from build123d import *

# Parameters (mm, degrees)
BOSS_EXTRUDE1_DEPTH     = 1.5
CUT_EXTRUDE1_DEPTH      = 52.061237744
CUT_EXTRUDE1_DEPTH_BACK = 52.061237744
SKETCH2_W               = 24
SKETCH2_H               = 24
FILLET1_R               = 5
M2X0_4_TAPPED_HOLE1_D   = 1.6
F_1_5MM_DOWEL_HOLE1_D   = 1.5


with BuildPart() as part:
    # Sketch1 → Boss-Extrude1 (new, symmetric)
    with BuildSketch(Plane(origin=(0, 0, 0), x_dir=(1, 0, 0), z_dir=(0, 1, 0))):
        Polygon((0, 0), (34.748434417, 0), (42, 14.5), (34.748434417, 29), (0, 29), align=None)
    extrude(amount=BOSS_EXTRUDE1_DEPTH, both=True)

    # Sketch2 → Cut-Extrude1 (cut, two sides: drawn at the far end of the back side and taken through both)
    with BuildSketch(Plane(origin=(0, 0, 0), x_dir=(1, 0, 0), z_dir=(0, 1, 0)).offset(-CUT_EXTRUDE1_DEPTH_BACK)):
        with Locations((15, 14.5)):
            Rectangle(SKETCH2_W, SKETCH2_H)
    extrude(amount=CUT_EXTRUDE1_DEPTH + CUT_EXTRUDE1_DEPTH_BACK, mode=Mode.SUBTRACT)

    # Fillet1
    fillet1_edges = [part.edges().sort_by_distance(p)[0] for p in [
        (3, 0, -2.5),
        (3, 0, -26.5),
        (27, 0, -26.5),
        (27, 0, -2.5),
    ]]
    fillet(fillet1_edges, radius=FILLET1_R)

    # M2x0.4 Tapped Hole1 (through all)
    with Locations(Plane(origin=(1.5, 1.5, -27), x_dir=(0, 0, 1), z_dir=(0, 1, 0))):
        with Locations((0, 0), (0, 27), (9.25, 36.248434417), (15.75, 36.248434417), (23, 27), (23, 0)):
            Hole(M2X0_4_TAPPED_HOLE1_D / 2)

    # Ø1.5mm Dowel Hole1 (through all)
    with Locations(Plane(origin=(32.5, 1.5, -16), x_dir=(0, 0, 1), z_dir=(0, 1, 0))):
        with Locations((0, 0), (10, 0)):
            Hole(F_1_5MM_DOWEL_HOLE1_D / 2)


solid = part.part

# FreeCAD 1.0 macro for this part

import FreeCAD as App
import Part
import Sketcher

V = App.Vector
Q = App.Units.Quantity


def edges_at(feature, points):
    """Names of the edges that pass closest to the given points."""
    edges = feature.Shape.Edges
    near = lambda p: min(range(len(edges)), key=lambda i: edges[i].distToShape(Part.Vertex(*p))[0])
    return sorted({f"Edge{near(p) + 1}" for p in points})


def add_polygon(sketch, points):
    """Adds a closed chain of lines whose ends are joined by coincident constraints."""
    first, n = sketch.GeometryCount, len(points)
    for a, b in zip(points, points[1:] + points[:1]):
        sketch.addGeometry(Part.LineSegment(App.Vector(*a, 0), App.Vector(*b, 0)), False)
    for i in range(n):
        sketch.addConstraint(Sketcher.Constraint("Coincident", first + i, 2, first + (i + 1) % n, 1))

doc = App.newDocument("Part")
body = doc.addObject("PartDesign::Body", "Body")

sketch1 = body.newObject("Sketcher::SketchObject", "Sketch")
sketch1.AttachmentSupport = (doc.getObject("XZ_Plane"), [""])
sketch1.MapMode = "FlatFace"
add_polygon(sketch1, [(0, 0), (35, 0), (42, -14), (35, -29), (0, -29)])
sketch1.addConstraint([
    Sketcher.Constraint("Horizontal", 0),
    Sketcher.Constraint("Horizontal", 3),
    Sketcher.Constraint("Vertical", 4),
    Sketcher.Constraint("Coincident", 4, 2, -1, 1),
    Sketcher.Constraint("Vertical", 0, 2, 2, 2),
    Sketcher.Constraint("Equal", 1, 2),
    Sketcher.Constraint("DistanceY", 4, 1, 4, 2, Q("29 mm")),
    Sketcher.Constraint("DistanceX", -1, 1, 1, 2, Q("42 mm")),
    Sketcher.Constraint("Angle", 1, Q("-63.43 deg")),
])
pad1 = body.newObject("PartDesign::Pad", "Pad")
pad1.Profile = sketch1
pad1.Length = 3
pad1.Midplane = True

sketch2 = body.newObject("Sketcher::SketchObject", "Sketch001")
sketch2.AttachmentSupport = (doc.getObject("XZ_Plane"), [""])
sketch2.MapMode = "FlatFace"
add_polygon(sketch2, [(3, -26), (3, -2), (27, -2), (27, -26)])
sketch2.addConstraint([
    Sketcher.Constraint("Vertical", 0),
    Sketcher.Constraint("Horizontal", 1),
    Sketcher.Constraint("Vertical", 2),
    Sketcher.Constraint("Horizontal", 3),
    Sketcher.Constraint("Equal", 3, 0),
    Sketcher.Constraint("DistanceX", 1, 1, 1, 2, Q("24 mm")),
    Sketcher.Constraint("DistanceX", -1, 1, 0, 2, Q("3 mm")),
    Sketcher.Constraint("DistanceY", 0, 2, -1, 1, Q("2.5 mm")),
])
pocket1 = body.newObject("PartDesign::Pocket", "Pocket")
pocket1.Profile = sketch2
pocket1.Type = "ThroughAll"
pocket1.Midplane = True
doc.recompute()

fillet = body.newObject("PartDesign::Fillet", "Fillet")
fillet.Base = (pocket1, edges_at(pocket1, [
    (3, 0, -2.5),
    (3, 0, -26.5),
    (27, 0, -26.5),
    (27, 0, -2.5),
]))
fillet.Radius = 5

sketch3 = body.newObject("Sketcher::SketchObject", "Sketch002")
sketch3.AttachmentSupport = (doc.getObject("XZ_Plane"), [""])
sketch3.MapMode = "FlatFace"
sketch3.AttachmentOffset = App.Placement(V(0, 0, -1.5), App.Rotation())
sketch3.addGeometry([
    Part.Circle(V(1.5, -27, 0), V(0, 0, 1), 0.8),
    Part.Circle(V(28.5, -27, 0), V(0, 0, 1), 0.8),
    Part.Circle(V(37.7, -17.8, 0), V(0, 0, 1), 0.8),
    Part.Circle(V(37.7, -11.2, 0), V(0, 0, 1), 0.8),
    Part.Circle(V(28.5, -4, 0), V(0, 0, 1), 0.8),
    Part.Circle(V(1.5, -4, 0), V(0, 0, 1), 0.8),
], False)
sketch3.addConstraint([
    Sketcher.Constraint("Equal", 0, 1),
    Sketcher.Constraint("Equal", 1, 2),
    Sketcher.Constraint("Equal", 2, 3),
    Sketcher.Constraint("Equal", 3, 4),
    Sketcher.Constraint("Equal", 4, 5),
    Sketcher.Constraint("Horizontal", 0, 3, 1, 3),
    Sketcher.Constraint("Horizontal", 4, 3, 5, 3),
    Sketcher.Constraint("Vertical", 2, 3, 3, 3),
    Sketcher.Constraint("Vertical", 1, 3, 4, 3),
    Sketcher.Constraint("Vertical", 0, 3, 5, 3),
    Sketcher.Constraint("Diameter", 0, Q("1.6 mm")),
    Sketcher.Constraint("DistanceY", 0, 3, -1, 1, Q("27 mm")),
    Sketcher.Constraint("DistanceY", 4, 3, -1, 1, Q("4 mm")),
    Sketcher.Constraint("DistanceX", 0, 3, 1, 3, Q("27 mm")),
    Sketcher.Constraint("DistanceX", -1, 1, 0, 3, Q("1.5 mm")),
    Sketcher.Constraint("DistanceY", 2, 3, 3, 3, Q("6.5 mm")),
    Sketcher.Constraint("DistanceY", 2, 3, -1, 1, Q("17.75 mm")),
    Sketcher.Constraint("DistanceX", -1, 1, 2, 3, Q("37.748434 mm")),
])
doc.recompute()
hole = body.newObject("PartDesign::Hole", "Hole")
hole.Profile = sketch3
hole.ThreadType = "None"
hole.Diameter = 1.6
hole.DepthType = "ThroughAll"
hole.Reversed = True

sketch4 = body.newObject("Sketcher::SketchObject", "Sketch003")
sketch4.AttachmentSupport = (doc.getObject("XZ_Plane"), [""])
sketch4.MapMode = "FlatFace"
sketch4.AttachmentOffset = App.Placement(V(0, 0, -1.5), App.Rotation())
sketch4.addGeometry([
    Part.Circle(V(32.5, -16, 0), V(0, 0, 1), 0.8),
    Part.Circle(V(32.5, -6, 0), V(0, 0, 1), 0.8),
], False)
sketch4.addConstraint([
    Sketcher.Constraint("Equal", 0, 1),
    Sketcher.Constraint("Vertical", 0, 3, 1, 3),
    Sketcher.Constraint("Diameter", 0, Q("1.5 mm")),
    Sketcher.Constraint("DistanceY", 0, 3, -1, 1, Q("16 mm")),
    Sketcher.Constraint("DistanceY", 1, 3, -1, 1, Q("6 mm")),
    Sketcher.Constraint("DistanceX", -1, 1, 0, 3, Q("32.5 mm")),
])
doc.recompute()
hole2 = body.newObject("PartDesign::Hole", "Hole001")
hole2.Profile = sketch4
hole2.ThreadType = "None"
hole2.Diameter = 1.5
hole2.DepthType = "ThroughAll"
hole2.Reversed = True

doc.recompute()
